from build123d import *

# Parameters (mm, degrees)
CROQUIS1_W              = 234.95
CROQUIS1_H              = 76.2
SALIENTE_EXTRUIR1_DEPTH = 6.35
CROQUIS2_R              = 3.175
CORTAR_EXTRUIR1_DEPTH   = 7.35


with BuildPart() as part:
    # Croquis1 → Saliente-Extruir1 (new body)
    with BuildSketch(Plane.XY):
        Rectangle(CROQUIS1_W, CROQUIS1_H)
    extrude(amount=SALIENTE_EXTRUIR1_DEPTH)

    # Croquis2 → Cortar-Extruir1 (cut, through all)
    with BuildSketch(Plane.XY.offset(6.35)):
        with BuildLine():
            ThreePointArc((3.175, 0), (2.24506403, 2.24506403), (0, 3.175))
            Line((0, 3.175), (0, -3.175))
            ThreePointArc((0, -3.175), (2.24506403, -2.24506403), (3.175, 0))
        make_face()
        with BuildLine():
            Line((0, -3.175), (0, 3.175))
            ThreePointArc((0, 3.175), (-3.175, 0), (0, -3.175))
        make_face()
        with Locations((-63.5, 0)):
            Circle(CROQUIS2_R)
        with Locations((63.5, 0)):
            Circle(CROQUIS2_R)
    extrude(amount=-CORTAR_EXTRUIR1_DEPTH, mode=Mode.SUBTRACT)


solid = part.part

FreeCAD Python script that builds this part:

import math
import FreeCAD as App
import Part
import Sketcher
from FreeCAD import Vector
Q = App.Units.Quantity


def add_polygon(sketch, points):
    """Adds a closed chain of lines whose ends are joined by coincident constraints."""
    first, n = sketch.GeometryCount, len(points)
    for a, b in zip(points, points[1:] + points[:1]):
        sketch.addGeometry(Part.LineSegment(App.Vector(*a, 0), App.Vector(*b, 0)), False)
    for i in range(n):
        sketch.addConstraint(Sketcher.Constraint("Coincident", first + i, 2, first + (i + 1) % n, 1))

doc = App.newDocument("Part")
body = doc.addObject("PartDesign::Body", "Body")

sketch1 = body.newObject("Sketcher::SketchObject", "Sketch")
sketch1.AttachmentSupport = (doc.getObject("XY_Plane"), [""])
sketch1.MapMode = "FlatFace"
add_polygon(sketch1, [(-117, 38), (-117, -38), (117, -38), (117, 38)])
sketch1.addConstraint([
    Sketcher.Constraint("Vertical", 0),
    Sketcher.Constraint("Horizontal", 1),
    Sketcher.Constraint("Vertical", 2),
    Sketcher.Constraint("Horizontal", 3),
    Sketcher.Constraint("Symmetric", 0, 2, 2, 2, -1, 1),
    Sketcher.Constraint("DistanceY", 0, 2, 0, 1, Q("3 in")),
    Sketcher.Constraint("DistanceX", 1, 1, 1, 2, Q("9.25 in")),
])
pad1 = body.newObject("PartDesign::Pad", "Pad")
pad1.Profile = sketch1
pad1.Length = Q("0.25 in")

sketch2 = body.newObject("Sketcher::SketchObject", "Sketch001")
sketch2.AttachmentSupport = (doc.getObject("XY_Plane"), [""])
sketch2.MapMode = "FlatFace"
sketch2.AttachmentOffset = App.Placement(Vector(0, 0, 0.25 * 25.4), App.Rotation())
sketch2.addGeometry([
    Part.ArcOfCircle(Part.Circle(Vector(0, 0, 0), Vector(0, 0, 1), 3.2), math.radians(0), math.radians(90)),
    Part.ArcOfCircle(Part.Circle(Vector(0, 0, 0), Vector(0, 0, 1), 3.2), math.radians(90), math.radians(270)),
    Part.ArcOfCircle(Part.Circle(Vector(0, 0, 0), Vector(0, 0, 1), 3.2), math.radians(-90), math.radians(0)),
    Part.Circle(Vector(-63.5, 0, 0), Vector(0, 0, 1), 3.2),
    Part.Circle(Vector(63.5, 0, 0), Vector(0, 0, 1), 3.2),
], False)
sketch2.addConstraint([
    Sketcher.Constraint("Tangent", 0, 2, 1, 1),
    Sketcher.Constraint("Tangent", 1, 2, 2, 1),
    Sketcher.Constraint("Tangent", 2, 2, 0, 1),
    Sketcher.Constraint("Coincident", 0, 3, -1, 1),
    Sketcher.Constraint("Equal", 2, 3),
    Sketcher.Constraint("Equal", 3, 4),
    Sketcher.Constraint("Symmetric", 3, 3, 4, 3, -1, 1),
    Sketcher.Constraint("PointOnObject", 3, 3, -1),
    Sketcher.Constraint("PointOnObject", 0, 2, -2),
    Sketcher.Constraint("PointOnObject", 1, 2, -2),
    Sketcher.Constraint("PointOnObject", 2, 2, -1),
    Sketcher.Constraint("Diameter", 3, Q("0.25 in")),
    Sketcher.Constraint("DistanceX", 3, 3, 4, 3, Q("5 in")),
])
pocket1 = body.newObject("PartDesign::Pocket", "Pocket")
pocket1.Profile = sketch2
pocket1.Type = "ThroughAll"

doc.recompute()
